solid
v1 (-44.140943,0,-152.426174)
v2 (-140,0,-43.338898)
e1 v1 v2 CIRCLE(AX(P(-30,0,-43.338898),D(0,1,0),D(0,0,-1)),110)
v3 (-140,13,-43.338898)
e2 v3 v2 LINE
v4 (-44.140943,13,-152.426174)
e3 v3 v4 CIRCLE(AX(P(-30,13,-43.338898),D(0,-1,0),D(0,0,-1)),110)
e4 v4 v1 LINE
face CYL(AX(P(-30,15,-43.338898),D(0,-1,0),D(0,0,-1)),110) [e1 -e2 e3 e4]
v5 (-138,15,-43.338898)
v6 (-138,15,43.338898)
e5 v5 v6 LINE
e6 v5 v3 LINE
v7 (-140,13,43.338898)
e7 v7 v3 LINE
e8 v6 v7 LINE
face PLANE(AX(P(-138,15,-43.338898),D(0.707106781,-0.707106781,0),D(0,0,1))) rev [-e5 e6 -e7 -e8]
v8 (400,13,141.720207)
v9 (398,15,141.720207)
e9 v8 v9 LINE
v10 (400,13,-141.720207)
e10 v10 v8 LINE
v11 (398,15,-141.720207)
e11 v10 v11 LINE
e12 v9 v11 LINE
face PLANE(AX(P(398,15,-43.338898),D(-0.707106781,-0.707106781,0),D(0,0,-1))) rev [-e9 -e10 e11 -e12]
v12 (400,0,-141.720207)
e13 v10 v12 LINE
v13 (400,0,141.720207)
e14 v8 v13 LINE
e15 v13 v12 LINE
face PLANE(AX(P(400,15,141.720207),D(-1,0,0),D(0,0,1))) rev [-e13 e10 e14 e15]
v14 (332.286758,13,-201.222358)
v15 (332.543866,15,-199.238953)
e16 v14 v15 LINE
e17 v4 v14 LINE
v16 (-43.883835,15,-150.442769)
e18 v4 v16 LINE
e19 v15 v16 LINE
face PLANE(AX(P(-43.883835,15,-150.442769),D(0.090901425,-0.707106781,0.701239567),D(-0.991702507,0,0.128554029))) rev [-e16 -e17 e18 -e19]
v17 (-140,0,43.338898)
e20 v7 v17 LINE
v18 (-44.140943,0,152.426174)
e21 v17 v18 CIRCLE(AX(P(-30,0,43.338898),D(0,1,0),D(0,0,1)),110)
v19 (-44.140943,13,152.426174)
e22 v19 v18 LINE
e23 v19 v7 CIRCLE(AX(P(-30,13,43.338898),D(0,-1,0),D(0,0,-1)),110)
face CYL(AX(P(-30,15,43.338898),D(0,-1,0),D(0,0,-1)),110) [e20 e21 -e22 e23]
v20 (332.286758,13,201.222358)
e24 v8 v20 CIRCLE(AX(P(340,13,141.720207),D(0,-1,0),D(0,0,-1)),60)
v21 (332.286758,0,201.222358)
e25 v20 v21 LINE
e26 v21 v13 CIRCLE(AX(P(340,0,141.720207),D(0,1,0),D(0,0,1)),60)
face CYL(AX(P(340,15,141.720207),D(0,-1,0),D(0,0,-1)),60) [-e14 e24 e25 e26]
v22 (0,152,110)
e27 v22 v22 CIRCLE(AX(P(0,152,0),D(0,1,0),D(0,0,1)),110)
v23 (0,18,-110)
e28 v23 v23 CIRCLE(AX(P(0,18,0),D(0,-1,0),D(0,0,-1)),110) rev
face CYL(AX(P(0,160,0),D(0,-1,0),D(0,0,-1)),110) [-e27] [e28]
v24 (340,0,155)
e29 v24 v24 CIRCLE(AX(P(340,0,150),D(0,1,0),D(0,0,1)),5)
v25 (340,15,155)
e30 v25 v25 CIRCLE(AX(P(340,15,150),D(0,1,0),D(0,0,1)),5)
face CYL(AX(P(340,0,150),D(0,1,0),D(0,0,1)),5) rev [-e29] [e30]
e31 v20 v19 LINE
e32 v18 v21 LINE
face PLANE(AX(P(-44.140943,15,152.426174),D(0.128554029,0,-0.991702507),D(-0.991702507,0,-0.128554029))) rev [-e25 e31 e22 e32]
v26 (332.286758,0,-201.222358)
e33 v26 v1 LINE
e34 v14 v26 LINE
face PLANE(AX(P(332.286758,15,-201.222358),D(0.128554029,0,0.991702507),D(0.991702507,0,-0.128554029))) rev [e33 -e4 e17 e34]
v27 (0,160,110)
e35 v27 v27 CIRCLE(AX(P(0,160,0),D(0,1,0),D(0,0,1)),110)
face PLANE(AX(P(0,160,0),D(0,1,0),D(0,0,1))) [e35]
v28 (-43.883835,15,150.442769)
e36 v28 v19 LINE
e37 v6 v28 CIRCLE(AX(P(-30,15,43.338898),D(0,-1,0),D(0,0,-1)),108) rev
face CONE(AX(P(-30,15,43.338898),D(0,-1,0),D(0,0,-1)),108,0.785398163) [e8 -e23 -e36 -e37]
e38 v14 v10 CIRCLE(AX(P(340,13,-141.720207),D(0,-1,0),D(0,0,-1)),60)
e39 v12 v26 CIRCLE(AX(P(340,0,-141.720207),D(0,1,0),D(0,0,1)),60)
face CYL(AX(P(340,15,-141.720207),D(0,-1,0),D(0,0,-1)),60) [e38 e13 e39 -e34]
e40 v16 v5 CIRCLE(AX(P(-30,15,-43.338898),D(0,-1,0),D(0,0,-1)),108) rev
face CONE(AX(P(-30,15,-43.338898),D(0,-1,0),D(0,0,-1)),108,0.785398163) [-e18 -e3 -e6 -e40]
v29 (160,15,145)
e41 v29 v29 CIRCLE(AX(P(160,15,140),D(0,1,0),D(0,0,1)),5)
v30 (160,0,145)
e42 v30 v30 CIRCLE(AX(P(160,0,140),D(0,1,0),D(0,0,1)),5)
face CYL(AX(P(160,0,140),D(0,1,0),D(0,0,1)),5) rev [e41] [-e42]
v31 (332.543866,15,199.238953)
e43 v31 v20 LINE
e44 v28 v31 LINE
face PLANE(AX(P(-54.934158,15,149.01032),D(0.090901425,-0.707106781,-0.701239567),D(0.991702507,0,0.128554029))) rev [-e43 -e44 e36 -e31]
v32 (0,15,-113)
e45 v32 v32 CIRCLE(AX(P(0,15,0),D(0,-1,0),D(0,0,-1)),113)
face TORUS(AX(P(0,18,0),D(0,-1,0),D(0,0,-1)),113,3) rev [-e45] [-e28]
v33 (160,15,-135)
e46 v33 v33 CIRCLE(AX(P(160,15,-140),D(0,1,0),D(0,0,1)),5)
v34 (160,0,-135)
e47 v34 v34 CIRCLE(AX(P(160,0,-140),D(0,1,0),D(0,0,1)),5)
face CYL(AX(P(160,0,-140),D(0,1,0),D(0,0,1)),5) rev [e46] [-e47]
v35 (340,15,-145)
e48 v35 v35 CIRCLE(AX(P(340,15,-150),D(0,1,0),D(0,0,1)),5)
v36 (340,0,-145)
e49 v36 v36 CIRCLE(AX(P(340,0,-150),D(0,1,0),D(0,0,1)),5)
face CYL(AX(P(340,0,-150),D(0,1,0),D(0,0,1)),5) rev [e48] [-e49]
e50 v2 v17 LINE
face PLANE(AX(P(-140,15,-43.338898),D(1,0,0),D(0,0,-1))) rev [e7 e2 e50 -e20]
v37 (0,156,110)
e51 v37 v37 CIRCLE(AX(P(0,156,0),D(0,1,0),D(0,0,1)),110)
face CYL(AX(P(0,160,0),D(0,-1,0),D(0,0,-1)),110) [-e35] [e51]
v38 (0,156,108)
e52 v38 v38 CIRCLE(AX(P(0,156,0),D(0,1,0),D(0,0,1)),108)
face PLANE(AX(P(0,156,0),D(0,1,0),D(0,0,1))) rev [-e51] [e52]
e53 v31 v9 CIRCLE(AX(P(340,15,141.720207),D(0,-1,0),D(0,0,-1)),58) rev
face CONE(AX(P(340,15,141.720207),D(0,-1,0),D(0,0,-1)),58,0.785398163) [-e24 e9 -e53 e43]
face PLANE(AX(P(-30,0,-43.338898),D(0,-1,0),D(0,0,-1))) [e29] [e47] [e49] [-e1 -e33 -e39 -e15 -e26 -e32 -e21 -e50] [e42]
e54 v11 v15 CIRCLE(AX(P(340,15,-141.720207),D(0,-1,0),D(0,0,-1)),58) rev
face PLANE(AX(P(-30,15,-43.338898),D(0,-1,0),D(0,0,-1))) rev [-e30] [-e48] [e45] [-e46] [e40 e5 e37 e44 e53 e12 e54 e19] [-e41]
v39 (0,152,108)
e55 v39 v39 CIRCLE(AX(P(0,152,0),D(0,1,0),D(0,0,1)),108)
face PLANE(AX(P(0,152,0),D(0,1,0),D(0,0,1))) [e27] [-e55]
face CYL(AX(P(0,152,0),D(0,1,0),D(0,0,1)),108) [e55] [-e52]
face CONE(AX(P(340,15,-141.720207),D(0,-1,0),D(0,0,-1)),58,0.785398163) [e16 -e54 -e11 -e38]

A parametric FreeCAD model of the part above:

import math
import FreeCAD as App
import Part
import Sketcher
from FreeCAD import Vector
Q = App.Units.Quantity


def edges_at(feature, points):
    """Names of the edges that pass closest to the given points."""
    edges = feature.Shape.Edges
    near = lambda p: min(range(len(edges)), key=lambda i: edges[i].distToShape(Part.Vertex(*p))[0])
    return sorted({f"Edge{near(p) + 1}" for p in points})

doc = App.newDocument("Part")
body = doc.addObject("PartDesign::Body", "Body")

sketch1 = body.newObject("Sketcher::SketchObject", "Sketch")
sketch1.AttachmentSupport = (doc.getObject("XZ_Plane"), [""])
sketch1.MapMode = "FlatFace"
sketch1.addGeometry([
    Part.LineSegment(Vector(-140, -43, 0), Vector(-140, 43, 0)),
    Part.ArcOfCircle(Part.Circle(Vector(-30, 43, 0), Vector(0, 0, 1), 110), math.radians(97), math.radians(180)),
    Part.LineSegment(Vector(-44, 152, 0), Vector(332, 201, 0)),
    Part.ArcOfCircle(Part.Circle(Vector(340, 142, 0), Vector(0, 0, 1), 60), math.radians(0), math.radians(97)),
    Part.LineSegment(Vector(400, 142, 0), Vector(400, -142, 0)),
    Part.ArcOfCircle(Part.Circle(Vector(340, -142, 0), Vector(0, 0, 1), 60), math.radians(-97), math.radians(0)),
    Part.LineSegment(Vector(332, -201, 0), Vector(-44, -152, 0)),
    Part.ArcOfCircle(Part.Circle(Vector(-30, -43, 0), Vector(0, 0, 1), 110), math.radians(180), math.radians(263)),
], False)
sketch1.addConstraint([
    Sketcher.Constraint("Tangent", 0, 2, 1, 2),
    Sketcher.Constraint("Tangent", 1, 1, 2, 1),
    Sketcher.Constraint("Tangent", 2, 2, 3, 2),
    Sketcher.Constraint("Tangent", 3, 1, 4, 1),
    Sketcher.Constraint("Tangent", 4, 2, 5, 2),
    Sketcher.Constraint("Tangent", 5, 1, 6, 1),
    Sketcher.Constraint("Tangent", 6, 2, 7, 2),
    Sketcher.Constraint("Tangent", 7, 1, 0, 1),
    Sketcher.Constraint("Vertical", 0),
    Sketcher.Constraint("Vertical", 4),
    Sketcher.Constraint("Equal", 3, 5),
    Sketcher.Constraint("Equal", 1, 7),
    Sketcher.Constraint("Symmetric", 2, 2, 5, 1, -1),
    Sketcher.Constraint("Radius", 1, Q("110 mm")),
    Sketcher.Constraint("Radius", 3, Q("60 mm")),
    Sketcher.Constraint("DistanceX", 1, 3, -1, 1, Q("30 mm")),
    Sketcher.Constraint("DistanceX", -1, 1, 3, 3, Q("340 mm")),
    Sketcher.Constraint("DistanceY", -1, 1, 1, 3, Q("43.338898 mm")),
    Sketcher.Constraint("Distance", 2, Q("379.577241 mm")),
])
pad1 = body.newObject("PartDesign::Pad", "Pad")
pad1.Profile = sketch1
pad1.Length = 15
pad1.Reversed = True

sketch2 = body.newObject("Sketcher::SketchObject", "Sketch001")
sketch2.AttachmentSupport = (doc.getObject("XZ_Plane"), [""])
sketch2.MapMode = "FlatFace"
sketch2.AttachmentOffset = App.Placement(Vector(0, 0, -15), App.Rotation())
sketch2.addGeometry(Part.Circle(Vector(0, 0, 0), Vector(0, 0, 1), 110), False)
sketch2.addConstraint([
    Sketcher.Constraint("Coincident", 0, 3, -1, 1),
    Sketcher.Constraint("Diameter", 0, Q("220 mm")),
])
pad2 = body.newObject("PartDesign::Pad", "Pad001")
pad2.Profile = sketch2
pad2.Length = 145
pad2.Reversed = True

sketch3 = body.newObject("Sketcher::SketchObject", "Sketch002")
sketch3.AttachmentSupport = (doc.getObject("XZ_Plane"), [""])
sketch3.MapMode = "FlatFace"
sketch3.AttachmentOffset = App.Placement(Vector(0, 0, -156), App.Rotation())
sketch3.addGeometry([
    Part.Circle(Vector(0, 0, 0), Vector(0, 0, 1), 111),
    Part.Circle(Vector(0, 0, 0), Vector(0, 0, 1), 108),
], False)
sketch3.addConstraint([
    Sketcher.Constraint("Coincident", 0, 3, -1, 1),
    Sketcher.Constraint("Coincident", 1, 3, -1, 1),
    Sketcher.Constraint("Diameter", 0, Q("222 mm")),
    Sketcher.Constraint("Diameter", 1, Q("216 mm")),
])
pocket1 = body.newObject("PartDesign::Pocket", "Pocket")
pocket1.Profile = sketch3
pocket1.Length = 4
pocket1.Reversed = True

sketch4 = body.newObject("Sketcher::SketchObject", "Sketch003")
sketch4.AttachmentSupport = (doc.getObject("XZ_Plane"), [""])
sketch4.MapMode = "FlatFace"
sketch4.AttachmentOffset = App.Placement(Vector(0, 0, -15), App.Rotation())
sketch4.addGeometry([
    Part.Circle(Vector(340, 150, 0), Vector(0, 0, 1), 5),
    Part.Circle(Vector(340, -150, 0), Vector(0, 0, 1), 5),
    Part.Circle(Vector(160, 140, 0), Vector(0, 0, 1), 5),
    Part.Circle(Vector(160, -140, 0), Vector(0, 0, 1), 5),
], False)
sketch4.addConstraint([
    Sketcher.Constraint("Equal", 0, 1),
    Sketcher.Constraint("Equal", 1, 2),
    Sketcher.Constraint("Equal", 2, 3),
    Sketcher.Constraint("Symmetric", 0, 3, 1, 3, -1),
    Sketcher.Constraint("Symmetric", 2, 3, 3, 3, -1),
    Sketcher.Constraint("Diameter", 0, Q("10 mm")),
    Sketcher.Constraint("DistanceX", -1, 1, 0, 3, Q("340 mm")),
    Sketcher.Constraint("DistanceY", -1, 1, 0, 3, Q("150 mm")),
    Sketcher.Constraint("DistanceX", -1, 1, 2, 3, Q("160 mm")),
    Sketcher.Constraint("DistanceY", -1, 1, 2, 3, Q("140 mm")),
])
pocket2 = body.newObject("PartDesign::Pocket", "Pocket001")
pocket2.Profile = sketch4
pocket2.Type = "ThroughAll"
pocket2.Reversed = True
doc.recompute()

fillet = body.newObject("PartDesign::Fillet", "Fillet")
fillet.Base = (pocket2, edges_at(pocket2, [(0, 15, -110)]))
fillet.Radius = 3
doc.recompute()

chamfer = body.newObject("PartDesign::Chamfer", "Chamfer")
chamfer.Base = (fillet, edges_at(fillet, [
    (-112.63, 15, 115.949),
    (144.073, 15, 176.824),
    (379.606, 15, 186.791),
    (400, 15, 0),
    (379.606, 15, -186.791),
    (144.073, 15, -176.824),
    (-112.63, 15, -115.949),
    (-140, 15, 0),
]))
chamfer.Size = 2

doc.recompute()
